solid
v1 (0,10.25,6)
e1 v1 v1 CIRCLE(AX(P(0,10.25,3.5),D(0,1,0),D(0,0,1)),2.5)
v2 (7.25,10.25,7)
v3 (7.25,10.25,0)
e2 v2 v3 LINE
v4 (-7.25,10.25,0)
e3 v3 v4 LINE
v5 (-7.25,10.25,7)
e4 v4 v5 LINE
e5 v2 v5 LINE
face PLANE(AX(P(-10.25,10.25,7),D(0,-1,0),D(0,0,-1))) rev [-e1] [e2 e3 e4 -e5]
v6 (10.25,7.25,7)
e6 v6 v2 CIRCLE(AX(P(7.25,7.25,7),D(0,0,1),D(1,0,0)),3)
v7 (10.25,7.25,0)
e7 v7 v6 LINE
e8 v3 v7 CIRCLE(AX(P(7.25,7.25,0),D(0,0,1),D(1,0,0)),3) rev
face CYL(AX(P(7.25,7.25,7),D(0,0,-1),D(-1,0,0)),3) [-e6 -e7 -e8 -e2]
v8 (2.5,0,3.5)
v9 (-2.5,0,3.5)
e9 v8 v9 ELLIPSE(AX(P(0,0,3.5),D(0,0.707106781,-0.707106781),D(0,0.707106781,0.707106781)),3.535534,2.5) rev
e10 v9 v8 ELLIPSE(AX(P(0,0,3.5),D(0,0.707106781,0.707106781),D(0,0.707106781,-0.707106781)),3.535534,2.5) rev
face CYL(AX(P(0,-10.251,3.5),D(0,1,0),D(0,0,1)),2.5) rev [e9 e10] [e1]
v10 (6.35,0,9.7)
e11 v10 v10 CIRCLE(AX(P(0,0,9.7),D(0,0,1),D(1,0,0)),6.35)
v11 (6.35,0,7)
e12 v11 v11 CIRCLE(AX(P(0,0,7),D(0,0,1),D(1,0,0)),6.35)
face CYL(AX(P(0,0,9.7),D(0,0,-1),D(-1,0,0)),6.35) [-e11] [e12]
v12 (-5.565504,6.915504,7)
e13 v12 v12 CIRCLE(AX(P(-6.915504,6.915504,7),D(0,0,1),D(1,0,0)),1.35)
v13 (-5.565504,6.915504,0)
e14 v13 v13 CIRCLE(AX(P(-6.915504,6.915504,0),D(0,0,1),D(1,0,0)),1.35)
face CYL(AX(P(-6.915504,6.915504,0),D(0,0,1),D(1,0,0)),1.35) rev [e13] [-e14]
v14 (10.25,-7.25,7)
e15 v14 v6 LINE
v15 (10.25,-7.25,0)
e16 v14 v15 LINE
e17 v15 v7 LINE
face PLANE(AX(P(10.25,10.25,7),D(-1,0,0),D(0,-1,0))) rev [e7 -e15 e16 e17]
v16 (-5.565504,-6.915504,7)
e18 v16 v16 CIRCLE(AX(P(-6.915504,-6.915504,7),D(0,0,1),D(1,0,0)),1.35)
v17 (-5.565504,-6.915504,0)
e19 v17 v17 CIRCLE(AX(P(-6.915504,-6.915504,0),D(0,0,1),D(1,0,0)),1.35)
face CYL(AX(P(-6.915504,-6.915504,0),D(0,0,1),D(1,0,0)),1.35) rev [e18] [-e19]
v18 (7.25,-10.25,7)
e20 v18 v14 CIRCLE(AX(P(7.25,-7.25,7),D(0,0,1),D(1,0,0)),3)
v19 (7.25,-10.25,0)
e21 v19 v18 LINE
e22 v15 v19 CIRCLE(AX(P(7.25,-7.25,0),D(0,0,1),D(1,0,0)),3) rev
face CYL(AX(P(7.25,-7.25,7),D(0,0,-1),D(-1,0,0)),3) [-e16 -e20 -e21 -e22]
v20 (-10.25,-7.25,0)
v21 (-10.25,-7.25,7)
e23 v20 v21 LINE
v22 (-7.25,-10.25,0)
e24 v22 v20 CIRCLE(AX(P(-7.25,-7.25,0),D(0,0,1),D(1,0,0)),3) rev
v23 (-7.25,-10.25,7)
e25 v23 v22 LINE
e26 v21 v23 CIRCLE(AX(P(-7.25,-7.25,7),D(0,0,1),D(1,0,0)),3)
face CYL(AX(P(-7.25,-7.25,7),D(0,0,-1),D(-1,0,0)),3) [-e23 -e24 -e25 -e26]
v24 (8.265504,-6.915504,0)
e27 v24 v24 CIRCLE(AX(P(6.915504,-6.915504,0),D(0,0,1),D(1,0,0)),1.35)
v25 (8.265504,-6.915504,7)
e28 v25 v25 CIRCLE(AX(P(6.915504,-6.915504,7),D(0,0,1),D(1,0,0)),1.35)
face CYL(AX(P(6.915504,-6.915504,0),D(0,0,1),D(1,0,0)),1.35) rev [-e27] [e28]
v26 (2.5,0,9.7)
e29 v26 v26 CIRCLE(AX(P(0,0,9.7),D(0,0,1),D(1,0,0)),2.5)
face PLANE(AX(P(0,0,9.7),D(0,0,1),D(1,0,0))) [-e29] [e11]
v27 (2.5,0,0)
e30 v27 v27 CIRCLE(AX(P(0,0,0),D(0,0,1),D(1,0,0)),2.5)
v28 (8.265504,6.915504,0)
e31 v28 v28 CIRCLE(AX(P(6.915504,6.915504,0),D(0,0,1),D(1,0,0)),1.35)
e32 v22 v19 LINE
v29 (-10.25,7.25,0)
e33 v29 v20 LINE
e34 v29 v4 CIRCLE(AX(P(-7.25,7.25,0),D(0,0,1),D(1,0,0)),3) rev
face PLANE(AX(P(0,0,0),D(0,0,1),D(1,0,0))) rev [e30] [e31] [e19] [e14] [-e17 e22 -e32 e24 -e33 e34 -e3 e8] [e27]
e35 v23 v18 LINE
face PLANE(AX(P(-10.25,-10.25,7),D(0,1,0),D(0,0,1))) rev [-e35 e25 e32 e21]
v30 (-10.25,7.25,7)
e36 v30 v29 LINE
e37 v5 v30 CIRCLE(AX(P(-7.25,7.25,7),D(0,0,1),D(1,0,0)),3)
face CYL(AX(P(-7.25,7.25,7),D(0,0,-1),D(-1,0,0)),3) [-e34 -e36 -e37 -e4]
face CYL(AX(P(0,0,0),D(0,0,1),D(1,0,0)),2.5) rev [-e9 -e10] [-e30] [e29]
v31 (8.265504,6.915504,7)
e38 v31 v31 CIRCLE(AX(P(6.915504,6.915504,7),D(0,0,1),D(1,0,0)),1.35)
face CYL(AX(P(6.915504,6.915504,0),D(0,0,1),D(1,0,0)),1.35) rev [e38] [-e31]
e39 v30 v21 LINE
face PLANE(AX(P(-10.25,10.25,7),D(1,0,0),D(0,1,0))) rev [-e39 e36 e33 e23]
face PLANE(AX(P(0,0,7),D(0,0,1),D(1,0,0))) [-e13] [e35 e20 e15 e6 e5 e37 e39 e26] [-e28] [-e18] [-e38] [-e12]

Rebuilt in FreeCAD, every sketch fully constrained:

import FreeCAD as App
import Part
import Sketcher
from FreeCAD import Vector


def edges_at(feature, points):
    """Names of the edges that pass closest to the given points."""
    edges = feature.Shape.Edges
    near = lambda p: min(range(len(edges)), key=lambda i: edges[i].distToShape(Part.Vertex(*p))[0])
    return sorted({f"Edge{near(p) + 1}" for p in points})


def add_polygon(sketch, points):
    """Adds a closed chain of lines whose ends are joined by coincident constraints."""
    first, n = sketch.GeometryCount, len(points)
    for a, b in zip(points, points[1:] + points[:1]):
        sketch.addGeometry(Part.LineSegment(App.Vector(*a, 0), App.Vector(*b, 0)), False)
    for i in range(n):
        sketch.addConstraint(Sketcher.Constraint("Coincident", first + i, 2, first + (i + 1) % n, 1))

doc = App.newDocument("Part")
body = doc.addObject("PartDesign::Body", "Body")

# Sketch on XY plane
sketch1 = body.newObject("Sketcher::SketchObject", "Sketch")
sketch1.AttachmentSupport = (doc.getObject("XY_Plane"), [""])
sketch1.MapMode = "FlatFace"
add_polygon(sketch1, [(-10.25, 10.25), (-10.25, -10.25), (10.25, -10.25), (10.25, 10.25)])  # lines 0-3
sketch1.addConstraint(Sketcher.Constraint("Vertical", 0))
sketch1.addConstraint(Sketcher.Constraint("Horizontal", 1))
sketch1.addConstraint(Sketcher.Constraint("Vertical", 2))
sketch1.addConstraint(Sketcher.Constraint("Horizontal", 3))
sketch1.addConstraint(Sketcher.Constraint("Symmetric", 0, 2, 2, 2, -1, 1))
sketch1.addConstraint(Sketcher.Constraint("Equal", 3, 0))
sketch1.addConstraint(Sketcher.Constraint("DistanceX", 1, 1, 1, 2, 20.5))
pad1 = body.newObject("PartDesign::Pad", "Pad")
pad1.Profile = sketch1
pad1.Length = 7
doc.recompute()

fillet = body.newObject("PartDesign::Fillet", "Fillet")
fillet.Base = (pad1, edges_at(pad1, [
    (10.25, -10.25, 3.5),
    (-10.25, -10.25, 3.5),
    (-10.25, 10.25, 3.5),
    (10.25, 10.25, 3.5),
]))
fillet.Radius = 3

# Sketch on XY plane
sketch2 = body.newObject("Sketcher::SketchObject", "Sketch001")
sketch2.AttachmentSupport = (doc.getObject("XY_Plane"), [""])
sketch2.MapMode = "FlatFace"
sketch2.AttachmentOffset = App.Placement(Vector(0, 0, 7), App.Rotation())
sketch2.addGeometry(Part.Circle(Vector(0, 0, 0), Vector(0, 0, 1), 6.35), False)
sketch2.addConstraint(Sketcher.Constraint("Coincident", 0, 3, -1, 1))
sketch2.addConstraint(Sketcher.Constraint("Diameter", 0, 12.7))
pad2 = body.newObject("PartDesign::Pad", "Pad001")
pad2.Profile = sketch2
pad2.Length = 2.7

# Sketch on XY plane
sketch3 = body.newObject("Sketcher::SketchObject", "Sketch002")
sketch3.AttachmentSupport = (doc.getObject("XY_Plane"), [""])
sketch3.MapMode = "FlatFace"
sketch3.AttachmentOffset = App.Placement(Vector(0, 0, 9.7), App.Rotation())
sketch3.addGeometry(Part.Circle(Vector(0, 0, 0), Vector(0, 0, 1), 2.5), False)
sketch3.addConstraint(Sketcher.Constraint("Coincident", 0, 3, -1, 1))
sketch3.addConstraint(Sketcher.Constraint("Diameter", 0, 5.0))
pocket1 = body.newObject("PartDesign::Pocket", "Pocket")
pocket1.Profile = sketch3
pocket1.Type = "ThroughAll"

# Sketch on XY plane
sketch4 = body.newObject("Sketcher::SketchObject", "Sketch003")
sketch4.AttachmentSupport = (doc.getObject("XY_Plane"), [""])
sketch4.MapMode = "FlatFace"
sketch4.AttachmentOffset = App.Placement(Vector(0, 0, 7), App.Rotation())
sketch4.addGeometry(Part.Circle(Vector(-6.915504, 6.915504, 0), Vector(0, 0, 1), 1.35), False)
sketch4.addGeometry(Part.Circle(Vector(6.915504, 6.915504, 0), Vector(0, 0, 1), 1.35), False)
sketch4.addGeometry(Part.Circle(Vector(6.915504, -6.915504, 0), Vector(0, 0, 1), 1.35), False)
sketch4.addGeometry(Part.Circle(Vector(-6.915504, -6.915504, 0), Vector(0, 0, 1), 1.35), False)
sketch4.addConstraint(Sketcher.Constraint("Equal", 0, 1))
sketch4.addConstraint(Sketcher.Constraint("Equal", 1, 2))
sketch4.addConstraint(Sketcher.Constraint("Equal", 2, 3))
sketch4.addConstraint(Sketcher.Constraint("Symmetric", 0, 3, 2, 3, -1, 1))
sketch4.addConstraint(Sketcher.Constraint("Symmetric", 1, 3, 3, 3, -1, 1))
sketch4.addConstraint(Sketcher.Constraint("Symmetric", 0, 3, 1, 3, -2))
sketch4.addConstraint(Sketcher.Constraint("Diameter", 0, 2.7))
sketch4.addConstraint(Sketcher.Constraint("DistanceX", 0, 3, 1, 3, 13.831009))
sketch4.addConstraint(Sketcher.Constraint("DistanceY", 2, 3, 1, 3, 13.831009))
pocket2 = body.newObject("PartDesign::Pocket", "Pocket001")
pocket2.Profile = sketch4
pocket2.Type = "ThroughAll"

# Sketch on XZ plane
sketch5 = body.newObject("Sketcher::SketchObject", "Sketch004")
sketch5.AttachmentSupport = (doc.getObject("XZ_Plane"), [""])
sketch5.MapMode = "FlatFace"
sketch5.AttachmentOffset = App.Placement(Vector(0, 0, -10.25), App.Rotation())
sketch5.addGeometry(Part.Circle(Vector(0, 3.5, 0), Vector(0, 0, 1), 2.5), False)
sketch5.addConstraint(Sketcher.Constraint("PointOnObject", 0, 3, -2))
sketch5.addConstraint(Sketcher.Constraint("Diameter", 0, 5.0))
sketch5.addConstraint(Sketcher.Constraint("DistanceY", -1, 1, 0, 3, 3.5))
pocket3 = body.newObject("PartDesign::Pocket", "Pocket002")
pocket3.Profile = sketch5
pocket3.Type = "UpToFirst"
pocket3.Reversed = True

doc.recompute()
